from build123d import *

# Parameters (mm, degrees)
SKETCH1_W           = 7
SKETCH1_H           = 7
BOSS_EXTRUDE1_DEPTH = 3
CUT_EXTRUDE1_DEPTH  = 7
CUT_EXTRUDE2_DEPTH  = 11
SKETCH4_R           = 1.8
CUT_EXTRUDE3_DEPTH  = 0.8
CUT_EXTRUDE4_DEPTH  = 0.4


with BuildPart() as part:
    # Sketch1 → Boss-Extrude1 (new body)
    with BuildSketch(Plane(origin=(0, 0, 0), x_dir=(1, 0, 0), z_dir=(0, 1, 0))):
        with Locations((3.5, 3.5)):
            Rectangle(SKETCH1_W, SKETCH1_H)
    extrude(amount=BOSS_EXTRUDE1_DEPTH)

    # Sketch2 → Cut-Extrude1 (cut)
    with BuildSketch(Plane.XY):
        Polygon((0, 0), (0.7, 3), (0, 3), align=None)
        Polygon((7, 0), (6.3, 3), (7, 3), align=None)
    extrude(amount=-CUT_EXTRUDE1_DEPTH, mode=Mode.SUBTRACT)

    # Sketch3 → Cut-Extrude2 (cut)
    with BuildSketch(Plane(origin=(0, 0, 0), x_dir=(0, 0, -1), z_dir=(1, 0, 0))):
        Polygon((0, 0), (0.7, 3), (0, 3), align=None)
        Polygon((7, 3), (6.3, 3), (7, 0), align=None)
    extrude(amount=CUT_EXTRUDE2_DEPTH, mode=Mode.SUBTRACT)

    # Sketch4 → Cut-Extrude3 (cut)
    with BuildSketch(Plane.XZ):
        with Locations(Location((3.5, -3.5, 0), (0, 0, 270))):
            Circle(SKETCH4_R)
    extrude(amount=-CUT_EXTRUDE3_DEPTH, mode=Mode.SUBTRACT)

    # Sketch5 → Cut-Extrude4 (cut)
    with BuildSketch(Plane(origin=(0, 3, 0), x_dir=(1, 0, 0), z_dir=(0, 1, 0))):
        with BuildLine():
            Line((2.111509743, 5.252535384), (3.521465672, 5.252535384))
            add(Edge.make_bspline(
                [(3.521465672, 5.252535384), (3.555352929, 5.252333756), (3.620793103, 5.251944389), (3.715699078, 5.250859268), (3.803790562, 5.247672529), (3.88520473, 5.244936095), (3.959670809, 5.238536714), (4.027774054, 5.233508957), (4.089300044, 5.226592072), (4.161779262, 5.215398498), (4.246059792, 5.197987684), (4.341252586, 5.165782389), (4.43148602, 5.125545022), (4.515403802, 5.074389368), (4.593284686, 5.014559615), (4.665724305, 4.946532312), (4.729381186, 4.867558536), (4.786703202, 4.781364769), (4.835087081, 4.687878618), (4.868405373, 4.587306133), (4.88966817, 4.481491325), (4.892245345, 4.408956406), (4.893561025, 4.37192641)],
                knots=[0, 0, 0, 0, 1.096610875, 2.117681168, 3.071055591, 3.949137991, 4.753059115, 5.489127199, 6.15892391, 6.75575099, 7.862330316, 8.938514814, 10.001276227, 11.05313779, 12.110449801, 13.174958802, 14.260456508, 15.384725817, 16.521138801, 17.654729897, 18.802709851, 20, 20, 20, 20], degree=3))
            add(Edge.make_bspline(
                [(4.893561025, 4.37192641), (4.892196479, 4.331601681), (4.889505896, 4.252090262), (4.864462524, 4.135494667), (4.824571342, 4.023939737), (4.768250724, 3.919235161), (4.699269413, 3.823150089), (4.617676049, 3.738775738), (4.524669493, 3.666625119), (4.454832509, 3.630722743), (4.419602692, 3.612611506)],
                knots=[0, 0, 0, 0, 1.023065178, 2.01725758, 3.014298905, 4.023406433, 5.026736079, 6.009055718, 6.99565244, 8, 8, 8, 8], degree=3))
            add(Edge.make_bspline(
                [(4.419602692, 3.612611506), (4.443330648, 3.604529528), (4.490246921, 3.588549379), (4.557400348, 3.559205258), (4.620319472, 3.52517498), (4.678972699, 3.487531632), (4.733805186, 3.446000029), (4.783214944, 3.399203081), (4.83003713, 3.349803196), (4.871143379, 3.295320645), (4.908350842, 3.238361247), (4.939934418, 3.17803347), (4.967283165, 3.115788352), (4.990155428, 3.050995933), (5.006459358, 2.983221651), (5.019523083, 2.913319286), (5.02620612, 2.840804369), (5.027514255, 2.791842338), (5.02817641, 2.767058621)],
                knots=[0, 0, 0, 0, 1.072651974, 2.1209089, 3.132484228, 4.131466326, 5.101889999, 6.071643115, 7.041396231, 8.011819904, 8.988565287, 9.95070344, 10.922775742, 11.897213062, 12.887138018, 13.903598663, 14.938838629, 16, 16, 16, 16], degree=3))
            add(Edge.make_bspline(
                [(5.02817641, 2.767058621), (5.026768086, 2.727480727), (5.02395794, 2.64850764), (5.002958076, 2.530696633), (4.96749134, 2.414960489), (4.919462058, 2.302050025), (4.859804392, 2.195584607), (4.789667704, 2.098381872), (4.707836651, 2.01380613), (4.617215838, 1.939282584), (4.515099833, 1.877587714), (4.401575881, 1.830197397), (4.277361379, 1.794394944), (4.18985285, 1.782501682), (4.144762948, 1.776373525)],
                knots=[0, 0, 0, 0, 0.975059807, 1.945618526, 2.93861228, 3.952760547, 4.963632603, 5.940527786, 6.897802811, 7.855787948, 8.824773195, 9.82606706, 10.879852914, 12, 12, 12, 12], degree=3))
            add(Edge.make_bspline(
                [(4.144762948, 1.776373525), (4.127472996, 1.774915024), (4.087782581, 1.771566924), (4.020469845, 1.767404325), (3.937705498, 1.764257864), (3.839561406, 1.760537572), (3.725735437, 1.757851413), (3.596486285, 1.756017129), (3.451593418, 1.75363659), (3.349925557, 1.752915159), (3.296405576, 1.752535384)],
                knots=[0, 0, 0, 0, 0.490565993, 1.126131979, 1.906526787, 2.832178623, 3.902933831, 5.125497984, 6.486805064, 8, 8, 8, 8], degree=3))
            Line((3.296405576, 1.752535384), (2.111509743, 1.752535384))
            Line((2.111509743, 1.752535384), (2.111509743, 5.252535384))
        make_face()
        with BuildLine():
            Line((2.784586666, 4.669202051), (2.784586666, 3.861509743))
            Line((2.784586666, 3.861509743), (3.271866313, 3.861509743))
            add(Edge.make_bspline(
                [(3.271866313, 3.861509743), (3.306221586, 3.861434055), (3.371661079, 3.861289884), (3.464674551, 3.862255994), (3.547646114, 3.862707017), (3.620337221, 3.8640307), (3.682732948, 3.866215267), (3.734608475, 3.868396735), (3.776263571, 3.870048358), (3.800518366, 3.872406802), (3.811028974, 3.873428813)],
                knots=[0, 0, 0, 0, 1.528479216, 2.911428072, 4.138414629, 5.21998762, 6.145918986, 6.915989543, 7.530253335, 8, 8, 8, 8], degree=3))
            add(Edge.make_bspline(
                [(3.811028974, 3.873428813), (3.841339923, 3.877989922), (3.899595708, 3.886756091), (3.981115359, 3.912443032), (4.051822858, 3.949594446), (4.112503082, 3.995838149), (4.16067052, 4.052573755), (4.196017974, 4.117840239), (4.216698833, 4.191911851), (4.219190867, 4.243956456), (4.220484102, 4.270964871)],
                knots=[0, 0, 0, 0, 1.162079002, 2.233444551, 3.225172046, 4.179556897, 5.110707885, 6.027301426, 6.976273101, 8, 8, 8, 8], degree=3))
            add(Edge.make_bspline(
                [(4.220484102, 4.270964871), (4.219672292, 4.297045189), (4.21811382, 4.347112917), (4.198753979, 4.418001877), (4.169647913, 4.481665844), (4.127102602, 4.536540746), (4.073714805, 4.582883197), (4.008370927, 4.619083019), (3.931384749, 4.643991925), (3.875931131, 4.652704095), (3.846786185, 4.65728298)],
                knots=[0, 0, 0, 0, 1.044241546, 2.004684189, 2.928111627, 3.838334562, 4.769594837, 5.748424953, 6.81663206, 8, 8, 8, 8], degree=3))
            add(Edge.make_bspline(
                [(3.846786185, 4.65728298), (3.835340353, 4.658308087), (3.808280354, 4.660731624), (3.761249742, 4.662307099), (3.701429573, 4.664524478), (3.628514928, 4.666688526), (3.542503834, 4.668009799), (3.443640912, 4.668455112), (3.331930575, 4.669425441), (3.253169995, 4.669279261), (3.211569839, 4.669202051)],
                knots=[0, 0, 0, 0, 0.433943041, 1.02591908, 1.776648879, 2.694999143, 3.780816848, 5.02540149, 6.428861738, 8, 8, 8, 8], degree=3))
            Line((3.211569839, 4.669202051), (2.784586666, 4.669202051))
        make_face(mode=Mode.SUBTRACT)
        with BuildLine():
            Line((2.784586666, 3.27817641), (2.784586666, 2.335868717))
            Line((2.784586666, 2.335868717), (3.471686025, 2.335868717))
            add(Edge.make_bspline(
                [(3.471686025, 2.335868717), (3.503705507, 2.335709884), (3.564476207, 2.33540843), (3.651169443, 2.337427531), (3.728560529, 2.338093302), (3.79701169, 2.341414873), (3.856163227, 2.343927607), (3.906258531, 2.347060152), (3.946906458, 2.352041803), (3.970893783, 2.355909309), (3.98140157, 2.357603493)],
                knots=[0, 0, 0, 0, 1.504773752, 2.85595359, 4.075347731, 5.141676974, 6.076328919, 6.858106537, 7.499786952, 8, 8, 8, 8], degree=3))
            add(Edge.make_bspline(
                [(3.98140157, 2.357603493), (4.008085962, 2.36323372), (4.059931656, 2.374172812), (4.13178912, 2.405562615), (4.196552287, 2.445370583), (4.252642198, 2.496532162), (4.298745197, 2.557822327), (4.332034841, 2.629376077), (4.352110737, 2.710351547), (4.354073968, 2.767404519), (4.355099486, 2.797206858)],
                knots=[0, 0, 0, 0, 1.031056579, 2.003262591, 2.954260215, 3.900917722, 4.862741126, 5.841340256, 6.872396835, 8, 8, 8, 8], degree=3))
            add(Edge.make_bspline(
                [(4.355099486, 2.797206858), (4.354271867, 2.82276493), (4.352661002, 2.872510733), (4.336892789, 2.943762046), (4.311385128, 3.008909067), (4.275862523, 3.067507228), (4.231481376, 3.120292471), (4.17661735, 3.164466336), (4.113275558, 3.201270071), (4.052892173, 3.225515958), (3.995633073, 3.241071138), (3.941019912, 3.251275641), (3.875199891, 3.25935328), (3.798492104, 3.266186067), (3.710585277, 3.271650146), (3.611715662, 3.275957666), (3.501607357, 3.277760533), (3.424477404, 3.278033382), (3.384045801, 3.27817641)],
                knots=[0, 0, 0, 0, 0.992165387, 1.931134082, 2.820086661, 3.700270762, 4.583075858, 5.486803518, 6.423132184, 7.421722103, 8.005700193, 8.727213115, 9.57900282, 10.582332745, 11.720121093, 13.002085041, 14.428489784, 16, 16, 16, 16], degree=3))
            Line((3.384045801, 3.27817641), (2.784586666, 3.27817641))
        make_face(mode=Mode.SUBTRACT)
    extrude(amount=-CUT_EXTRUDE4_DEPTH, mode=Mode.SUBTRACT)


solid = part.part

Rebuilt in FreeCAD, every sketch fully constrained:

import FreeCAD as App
import Part
import Sketcher

V = App.Vector

doc = App.newDocument("Part")
params = doc.addObject("Spreadsheet::Sheet", "Params")
for row, (alias, value) in enumerate([
    ("sketch1_width", "7 mm"),
    ("pad1_length", "3 mm"),
    ("sketch2_height", "3 mm"),
    ("sketch2_width", "0.7 mm"),
    ("pocket1_length", "7 mm"),
    ("sketch3_width", "3 mm"),
    ("sketch3_height", "0.7 mm"),
    ("pocket2_length", "11 mm"),
    ("sketch4_diameter", "3.6 mm"),
    ("pocket3_length", "0.8 mm"),
    ("pocket4_length", "0.4 mm"),
], start=1):
    params.set(f"A{row}", alias)
    params.set(f"B{row}", "=" + value)
    params.setAlias(f"B{row}", alias)

body = doc.addObject("PartDesign::Body", "Body")

# Sketch on XZ plane
sketch1 = body.newObject("Sketcher::SketchObject", "Sketch")
sketch1.AttachmentSupport = (doc.getObject("XZ_Plane"), [""])
sketch1.MapMode = "FlatFace"
sketch1.addGeometry([
    Part.LineSegment(V(0, -7, 0), V(0, 0, 0)),
    Part.LineSegment(V(0, 0, 0), V(7, 0, 0)),
    Part.LineSegment(V(7, 0, 0), V(7, -7, 0)),
    Part.LineSegment(V(7, -7, 0), V(0, -7, 0)),
], False)
sketch1.addConstraint([
    Sketcher.Constraint("Coincident", 0, 2, 1, 1),
    Sketcher.Constraint("Coincident", 1, 2, 2, 1),
    Sketcher.Constraint("Coincident", 2, 2, 3, 1),
    Sketcher.Constraint("Coincident", 3, 2, 0, 1),
    Sketcher.Constraint("Vertical", 0),
    Sketcher.Constraint("Horizontal", 1),
    Sketcher.Constraint("Vertical", 2),
    Sketcher.Constraint("Horizontal", 3),
    Sketcher.Constraint("Coincident", 0, 2, -1, 1),
    Sketcher.Constraint("Equal", 3, 0),
    Sketcher.Constraint("DistanceX", 1, 1, 1, 2, 7.0),
])
sketch1.setExpression("Constraints[10]", "Params.sketch1_width")
pad1 = body.newObject("PartDesign::Pad", "Pad")
pad1.Profile = sketch1
pad1.setExpression("Length", "Params.pad1_length")
pad1.Reversed = True

# Sketch on XY plane
sketch2 = body.newObject("Sketcher::SketchObject", "Sketch001")
sketch2.AttachmentSupport = (doc.getObject("XY_Plane"), [""])
sketch2.MapMode = "FlatFace"
sketch2.addGeometry([
    Part.LineSegment(V(0, 0, 0), V(0.7, 3, 0)),  # 0
    Part.LineSegment(V(0.7, 3, 0), V(0, 3, 0)),  # 1
    Part.LineSegment(V(0, 3, 0), V(0, 0, 0)),  # 2
    Part.LineSegment(V(6.3, 3, 0), V(7, 0, 0)),  # 3
    Part.LineSegment(V(7, 0, 0), V(7, 3, 0)),  # 4
    Part.LineSegment(V(7, 3, 0), V(6.3, 3, 0)),  # 5
], False)
sketch2.addConstraint([
    Sketcher.Constraint("Coincident", 0, 2, 1, 1),
    Sketcher.Constraint("Coincident", 1, 2, 2, 1),
    Sketcher.Constraint("Coincident", 2, 2, 0, 1),
    Sketcher.Constraint("Coincident", 3, 2, 4, 1),
    Sketcher.Constraint("Coincident", 4, 2, 5, 1),
    Sketcher.Constraint("Coincident", 5, 2, 3, 1),
    Sketcher.Constraint("Horizontal", 1),
    Sketcher.Constraint("Vertical", 2),
    Sketcher.Constraint("Vertical", 4),
    Sketcher.Constraint("Horizontal", 5),
    Sketcher.Constraint("Coincident", 2, 2, -1, 1),
    Sketcher.Constraint("PointOnObject", 3, 2, -1),
    Sketcher.Constraint("Horizontal", 1, 2, 4, 2),
    Sketcher.Constraint("Equal", 1, 5),
    Sketcher.Constraint("DistanceY", 2, 2, 2, 1, 3.0),
    Sketcher.Constraint("DistanceX", 1, 2, 1, 1, 0.7),
    Sketcher.Constraint("DistanceX", -1, 1, 3, 2, 7.0),
])
sketch2.setExpression("Constraints[14]", "Params.sketch2_height")
sketch2.setExpression("Constraints[15]", "Params.sketch2_width")
pocket1 = body.newObject("PartDesign::Pocket", "Pocket")
pocket1.Profile = sketch2
pocket1.setExpression("Length", "Params.pocket1_length")

# Sketch on YZ plane
sketch3 = body.newObject("Sketcher::SketchObject", "Sketch002")
sketch3.AttachmentSupport = (doc.getObject("YZ_Plane"), [""])
sketch3.MapMode = "FlatFace"
sketch3.addGeometry([
    Part.LineSegment(V(0, 0, 0), V(3, -0.7, 0)),  # 0
    Part.LineSegment(V(3, -0.7, 0), V(3, 0, 0)),  # 1
    Part.LineSegment(V(3, 0, 0), V(0, 0, 0)),  # 2
    Part.LineSegment(V(3, -7, 0), V(3, -6.3, 0)),  # 3
    Part.LineSegment(V(3, -6.3, 0), V(0, -7, 0)),  # 4
    Part.LineSegment(V(0, -7, 0), V(3, -7, 0)),  # 5
], False)
sketch3.addConstraint([
    Sketcher.Constraint("Coincident", 0, 2, 1, 1),
    Sketcher.Constraint("Coincident", 1, 2, 2, 1),
    Sketcher.Constraint("Coincident", 2, 2, 0, 1),
    Sketcher.Constraint("Coincident", 3, 2, 4, 1),
    Sketcher.Constraint("Coincident", 4, 2, 5, 1),
    Sketcher.Constraint("Coincident", 5, 2, 3, 1),
    Sketcher.Constraint("Vertical", 1),
    Sketcher.Constraint("Horizontal", 2),
    Sketcher.Constraint("Vertical", 3),
    Sketcher.Constraint("Horizontal", 5),
    Sketcher.Constraint("Coincident", 2, 2, -1, 1),
    Sketcher.Constraint("PointOnObject", 4, 2, -2),
    Sketcher.Constraint("Vertical", 1, 2, 3, 2),
    Sketcher.Constraint("Equal", 1, 3),
    Sketcher.Constraint("DistanceX", 2, 2, 2, 1, 3.0),
    Sketcher.Constraint("DistanceY", 1, 1, 1, 2, 0.7),
    Sketcher.Constraint("DistanceY", 4, 2, -1, 1, 7.0),
])
sketch3.setExpression("Constraints[14]", "Params.sketch3_width")
sketch3.setExpression("Constraints[15]", "Params.sketch3_height")
pocket2 = body.newObject("PartDesign::Pocket", "Pocket001")
pocket2.Profile = sketch3
pocket2.setExpression("Length", "Params.pocket2_length")
pocket2.Reversed = True

# Sketch on XZ plane
sketch4 = body.newObject("Sketcher::SketchObject", "Sketch003")
sketch4.AttachmentSupport = (doc.getObject("XZ_Plane"), [""])
sketch4.MapMode = "FlatFace"
sketch4.addGeometry(Part.Circle(V(3.5, -3.5, 0), V(0, 0, 1), 1.8), False)
sketch4.addConstraint([
    Sketcher.Constraint("Diameter", 0, 3.6),
    Sketcher.Constraint("DistanceX", -1, 1, 0, 3, 3.5),
    Sketcher.Constraint("DistanceY", 0, 3, -1, 1, 3.5),
])
sketch4.setExpression("Constraints[0]", "Params.sketch4_diameter")
pocket3 = body.newObject("PartDesign::Pocket", "Pocket002")
pocket3.Profile = sketch4
pocket3.setExpression("Length", "Params.pocket3_length")

# Sketch on XZ plane
sketch5 = body.newObject("Sketcher::SketchObject", "Sketch004")
sketch5.AttachmentSupport = (doc.getObject("XZ_Plane"), [""])
sketch5.MapMode = "FlatFace"
sketch5.AttachmentOffset = App.Placement(V(0, 0, -3), App.Rotation())
sketch5.addGeometry([
    Part.LineSegment(V(3.521466, -5.252535, 0), V(2.11151, -5.252535, 0)),  # 0
    Part.LineSegment(V(2.11151, -5.252535, 0), V(2.11151, -1.752535, 0)),  # 1
    Part.LineSegment(V(2.11151, -1.752535, 0), V(3.296406, -1.752535, 0)),  # 2
    Part.BSplineCurve([V(4.144763, -1.776374, 0), V(4.127473, -1.774915, 0), V(4.087783, -1.771567, 0), V(4.02047, -1.767404, 0), V(3.937705, -1.764258, 0), V(3.839561, -1.760538, 0), V(3.725735, -1.757851, 0), V(3.596486, -1.756017, 0), V(3.451593, -1.753637, 0), V(3.349926, -1.752915, 0), V(3.296406, -1.752535, 0)], [4, 1, 1, 1, 1, 1, 1, 1, 4], [0, 0.490565993, 1.126131979, 1.906526787, 2.832178623, 3.902933831, 5.125497984, 6.486805064, 8], False, 3, [1, 1, 1, 1, 1, 1, 1, 1, 1, 1, 1], False),  # 3
    Part.BSplineCurve([V(5.028176, -2.767059, 0), V(5.026768, -2.727481, 0), V(5.023958, -2.648508, 0), V(5.002958, -2.530697, 0), V(4.967491, -2.41496, 0), V(4.919462, -2.30205, 0), V(4.859804, -2.195585, 0), V(4.789668, -2.098382, 0), V(4.707837, -2.013806, 0), V(4.617216, -1.939283, 0), V(4.5151, -1.877588, 0), V(4.401576, -1.830197, 0), V(4.277361, -1.794395, 0), V(4.189853, -1.782502, 0), V(4.144763, -1.776374, 0)], [4, 1, 1, 1, 1, 1, 1, 1, 1, 1, 1, 1, 4], [0, 0.975059807, 1.945618526, 2.93861228, 3.952760547, 4.963632603, 5.940527786, 6.897802811, 7.855787948, 8.824773195, 9.82606706, 10.879852914, 12], False, 3, [1, 1, 1, 1, 1, 1, 1, 1, 1, 1, 1, 1, 1, 1, 1], False),  # 4
    Part.BSplineCurve([V(4.419603, -3.612612, 0), V(4.443331, -3.60453, 0), V(4.490247, -3.588549, 0), V(4.5574, -3.559205, 0), V(4.620319, -3.525175, 0), V(4.678973, -3.487532, 0), V(4.733805, -3.446, 0), V(4.783215, -3.399203, 0), V(4.830037, -3.349803, 0), V(4.871143, -3.295321, 0), V(4.908351, -3.238361, 0), V(4.939934, -3.178033, 0), V(4.967283, -3.115788, 0), V(4.990155, -3.050996, 0), V(5.006459, -2.983222, 0), V(5.019523, -2.913319, 0), V(5.026206, -2.840804, 0), V(5.027514, -2.791842, 0), V(5.028176, -2.767059, 0)], [4, 1, 1, 1, 1, 1, 1, 1, 1, 1, 1, 1, 1, 1, 1, 1, 4], [0, 1.072651974, 2.1209089, 3.132484228, 4.131466326, 5.101889999, 6.071643115, 7.041396231, 8.011819904, 8.988565287, 9.95070344, 10.922775742, 11.897213062, 12.887138018, 13.903598663, 14.938838629, 16], False, 3, [1, 1, 1, 1, 1, 1, 1, 1, 1, 1, 1, 1, 1, 1, 1, 1, 1, 1, 1], False),  # 5
    Part.BSplineCurve([V(4.893561, -4.371926, 0), V(4.892196, -4.331602, 0), V(4.889506, -4.25209, 0), V(4.864463, -4.135495, 0), V(4.824571, -4.02394, 0), V(4.768251, -3.919235, 0), V(4.699269, -3.82315, 0), V(4.617676, -3.738776, 0), V(4.524669, -3.666625, 0), V(4.454833, -3.630723, 0), V(4.419603, -3.612612, 0)], [4, 1, 1, 1, 1, 1, 1, 1, 4], [0, 1.023065178, 2.01725758, 3.014298905, 4.023406433, 5.026736079, 6.009055718, 6.99565244, 8], False, 3, [1, 1, 1, 1, 1, 1, 1, 1, 1, 1, 1], False),  # 6
    Part.BSplineCurve([V(3.521466, -5.252535, 0), V(3.555353, -5.252334, 0), V(3.620793, -5.251944, 0), V(3.715699, -5.250859, 0), V(3.803791, -5.247673, 0), V(3.885205, -5.244936, 0), V(3.959671, -5.238537, 0), V(4.027774, -5.233509, 0), V(4.0893, -5.226592, 0), V(4.161779, -5.215398, 0), V(4.24606, -5.197988, 0), V(4.341253, -5.165782, 0), V(4.431486, -5.125545, 0), V(4.515404, -5.074389, 0), V(4.593285, -5.01456, 0), V(4.665724, -4.946532, 0), V(4.729381, -4.867559, 0), V(4.786703, -4.781365, 0), V(4.835087, -4.687879, 0), V(4.868405, -4.587306, 0), V(4.889668, -4.481491, 0), V(4.892245, -4.408956, 0), V(4.893561, -4.371926, 0)], [4, 1, 1, 1, 1, 1, 1, 1, 1, 1, 1, 1, 1, 1, 1, 1, 1, 1, 1, 1, 4], [0, 1.096610875, 2.117681168, 3.071055591, 3.949137991, 4.753059115, 5.489127199, 6.15892391, 6.75575099, 7.862330316, 8.938514814, 10.001276227, 11.05313779, 12.110449801, 13.174958802, 14.260456508, 15.384725817, 16.521138801, 17.654729897, 18.802709851, 20], False, 3, [1, 1, 1, 1, 1, 1, 1, 1, 1, 1, 1, 1, 1, 1, 1, 1, 1, 1, 1, 1, 1, 1, 1], False),  # 7
    Part.LineSegment(V(2.784587, -3.278176, 0), V(3.384046, -3.278176, 0)),  # 8
    Part.BSplineCurve([V(4.355099, -2.797207, 0), V(4.354272, -2.822765, 0), V(4.352661, -2.872511, 0), V(4.336893, -2.943762, 0), V(4.311385, -3.008909, 0), V(4.275863, -3.067507, 0), V(4.231481, -3.120292, 0), V(4.176617, -3.164466, 0), V(4.113276, -3.20127, 0), V(4.052892, -3.225516, 0), V(3.995633, -3.241071, 0), V(3.94102, -3.251276, 0), V(3.8752, -3.259353, 0), V(3.798492, -3.266186, 0), V(3.710585, -3.27165, 0), V(3.611716, -3.275958, 0), V(3.501607, -3.277761, 0), V(3.424477, -3.278033, 0), V(3.384046, -3.278176, 0)], [4, 1, 1, 1, 1, 1, 1, 1, 1, 1, 1, 1, 1, 1, 1, 1, 4], [0, 0.992165387, 1.931134082, 2.820086661, 3.700270762, 4.583075858, 5.486803518, 6.423132184, 7.421722103, 8.005700193, 8.727213115, 9.57900282, 10.582332745, 11.720121093, 13.002085041, 14.428489784, 16], False, 3, [1, 1, 1, 1, 1, 1, 1, 1, 1, 1, 1, 1, 1, 1, 1, 1, 1, 1, 1], False),  # 9
    Part.BSplineCurve([V(3.981402, -2.357603, 0), V(4.008086, -2.363234, 0), V(4.059932, -2.374173, 0), V(4.131789, -2.405563, 0), V(4.196552, -2.445371, 0), V(4.252642, -2.496532, 0), V(4.298745, -2.557822, 0), V(4.332035, -2.629376, 0), V(4.352111, -2.710352, 0), V(4.354074, -2.767405, 0), V(4.355099, -2.797207, 0)], [4, 1, 1, 1, 1, 1, 1, 1, 4], [0, 1.031056579, 2.003262591, 2.954260215, 3.900917722, 4.862741126, 5.841340256, 6.872396835, 8], False, 3, [1, 1, 1, 1, 1, 1, 1, 1, 1, 1, 1], False),  # 10
    Part.BSplineCurve([V(3.471686, -2.335869, 0), V(3.503706, -2.33571, 0), V(3.564476, -2.335408, 0), V(3.651169, -2.337428, 0), V(3.728561, -2.338093, 0), V(3.797012, -2.341415, 0), V(3.856163, -2.343928, 0), V(3.906259, -2.34706, 0), V(3.946906, -2.352042, 0), V(3.970894, -2.355909, 0), V(3.981402, -2.357603, 0)], [4, 1, 1, 1, 1, 1, 1, 1, 4], [0, 1.504773752, 2.85595359, 4.075347731, 5.141676974, 6.076328919, 6.858106537, 7.499786952, 8], False, 3, [1, 1, 1, 1, 1, 1, 1, 1, 1, 1, 1], False),  # 11
    Part.LineSegment(V(3.471686, -2.335869, 0), V(2.784587, -2.335869, 0)),  # 12
    Part.LineSegment(V(2.784587, -2.335869, 0), V(2.784587, -3.278176, 0)),  # 13
    Part.LineSegment(V(2.784587, -4.669202, 0), V(3.21157, -4.669202, 0)),  # 14
    Part.BSplineCurve([V(3.846786, -4.657283, 0), V(3.83534, -4.658308, 0), V(3.80828, -4.660732, 0), V(3.76125, -4.662307, 0), V(3.70143, -4.664524, 0), V(3.628515, -4.666689, 0), V(3.542504, -4.66801, 0), V(3.443641, -4.668455, 0), V(3.331931, -4.669425, 0), V(3.25317, -4.669279, 0), V(3.21157, -4.669202, 0)], [4, 1, 1, 1, 1, 1, 1, 1, 4], [0, 0.433943041, 1.02591908, 1.776648879, 2.694999143, 3.780816848, 5.02540149, 6.428861738, 8], False, 3, [1, 1, 1, 1, 1, 1, 1, 1, 1, 1, 1], False),  # 15
    Part.BSplineCurve([V(4.220484, -4.270965, 0), V(4.219672, -4.297045, 0), V(4.218114, -4.347113, 0), V(4.198754, -4.418002, 0), V(4.169648, -4.481666, 0), V(4.127103, -4.536541, 0), V(4.073715, -4.582883, 0), V(4.008371, -4.619083, 0), V(3.931385, -4.643992, 0), V(3.875931, -4.652704, 0), V(3.846786, -4.657283, 0)], [4, 1, 1, 1, 1, 1, 1, 1, 4], [0, 1.044241546, 2.004684189, 2.928111627, 3.838334562, 4.769594837, 5.748424953, 6.81663206, 8], False, 3, [1, 1, 1, 1, 1, 1, 1, 1, 1, 1, 1], False),  # 16
    Part.BSplineCurve([V(3.811029, -3.873429, 0), V(3.84134, -3.87799, 0), V(3.899596, -3.886756, 0), V(3.981115, -3.912443, 0), V(4.051823, -3.949594, 0), V(4.112503, -3.995838, 0), V(4.160671, -4.052574, 0), V(4.196018, -4.11784, 0), V(4.216699, -4.191912, 0), V(4.219191, -4.243956, 0), V(4.220484, -4.270965, 0)], [4, 1, 1, 1, 1, 1, 1, 1, 4], [0, 1.162079002, 2.233444551, 3.225172046, 4.179556897, 5.110707885, 6.027301426, 6.976273101, 8], False, 3, [1, 1, 1, 1, 1, 1, 1, 1, 1, 1, 1], False),  # 17
    Part.BSplineCurve([V(3.271866, -3.86151, 0), V(3.306222, -3.861434, 0), V(3.371661, -3.86129, 0), V(3.464675, -3.862256, 0), V(3.547646, -3.862707, 0), V(3.620337, -3.864031, 0), V(3.682733, -3.866215, 0), V(3.734608, -3.868397, 0), V(3.776264, -3.870048, 0), V(3.800518, -3.872407, 0), V(3.811029, -3.873429, 0)], [4, 1, 1, 1, 1, 1, 1, 1, 4], [0, 1.528479216, 2.911428072, 4.138414629, 5.21998762, 6.145918986, 6.915989543, 7.530253335, 8], False, 3, [1, 1, 1, 1, 1, 1, 1, 1, 1, 1, 1], False),  # 18
    Part.LineSegment(V(3.271866, -3.86151, 0), V(2.784587, -3.86151, 0)),  # 19
    Part.LineSegment(V(2.784587, -3.86151, 0), V(2.784587, -4.669202, 0)),  # 20
], False)
sketch5.addConstraint([
    Sketcher.Constraint("Block", 3),
    Sketcher.Constraint("Block", 4),
    Sketcher.Constraint("Block", 5),
    Sketcher.Constraint("Block", 6),
    Sketcher.Constraint("Block", 7),
    Sketcher.Constraint("Block", 9),
    Sketcher.Constraint("Block", 10),
    Sketcher.Constraint("Block", 11),
    Sketcher.Constraint("Block", 15),
    Sketcher.Constraint("Block", 16),
    Sketcher.Constraint("Block", 17),
    Sketcher.Constraint("Block", 18),
    Sketcher.Constraint("Coincident", 0, 2, 1, 1),
    Sketcher.Constraint("Coincident", 1, 2, 2, 1),
    Sketcher.Constraint("Coincident", 2, 2, 3, 2),
    Sketcher.Constraint("Coincident", 7, 1, 0, 1),
    Sketcher.Constraint("Coincident", 8, 2, 9, 2),
    Sketcher.Constraint("Coincident", 11, 1, 12, 1),
    Sketcher.Constraint("Coincident", 12, 2, 13, 1),
    Sketcher.Constraint("Coincident", 13, 2, 8, 1),
    Sketcher.Constraint("Coincident", 14, 2, 15, 2),
    Sketcher.Constraint("Coincident", 18, 1, 19, 1),
    Sketcher.Constraint("Coincident", 19, 2, 20, 1),
    Sketcher.Constraint("Coincident", 20, 2, 14, 1),
    Sketcher.Constraint("Horizontal", 0),
    Sketcher.Constraint("Vertical", 1),
    Sketcher.Constraint("Horizontal", 2),
    Sketcher.Constraint("Horizontal", 8),
    Sketcher.Constraint("Horizontal", 12),
    Sketcher.Constraint("Vertical", 13),
    Sketcher.Constraint("Horizontal", 14),
    Sketcher.Constraint("Horizontal", 19),
    Sketcher.Constraint("Vertical", 20),
    Sketcher.Constraint("Vertical", 13, 2, 19, 2),
    Sketcher.Constraint("DistanceX", 12, 2, 12, 1, 0.687099),
    Sketcher.Constraint("DistanceX", 0, 2, 0, 1, 1.409956),
])
pocket4 = body.newObject("PartDesign::Pocket", "Pocket003")
pocket4.Profile = sketch5
pocket4.setExpression("Length", "Params.pocket4_length")
pocket4.Reversed = True

doc.recompute()
